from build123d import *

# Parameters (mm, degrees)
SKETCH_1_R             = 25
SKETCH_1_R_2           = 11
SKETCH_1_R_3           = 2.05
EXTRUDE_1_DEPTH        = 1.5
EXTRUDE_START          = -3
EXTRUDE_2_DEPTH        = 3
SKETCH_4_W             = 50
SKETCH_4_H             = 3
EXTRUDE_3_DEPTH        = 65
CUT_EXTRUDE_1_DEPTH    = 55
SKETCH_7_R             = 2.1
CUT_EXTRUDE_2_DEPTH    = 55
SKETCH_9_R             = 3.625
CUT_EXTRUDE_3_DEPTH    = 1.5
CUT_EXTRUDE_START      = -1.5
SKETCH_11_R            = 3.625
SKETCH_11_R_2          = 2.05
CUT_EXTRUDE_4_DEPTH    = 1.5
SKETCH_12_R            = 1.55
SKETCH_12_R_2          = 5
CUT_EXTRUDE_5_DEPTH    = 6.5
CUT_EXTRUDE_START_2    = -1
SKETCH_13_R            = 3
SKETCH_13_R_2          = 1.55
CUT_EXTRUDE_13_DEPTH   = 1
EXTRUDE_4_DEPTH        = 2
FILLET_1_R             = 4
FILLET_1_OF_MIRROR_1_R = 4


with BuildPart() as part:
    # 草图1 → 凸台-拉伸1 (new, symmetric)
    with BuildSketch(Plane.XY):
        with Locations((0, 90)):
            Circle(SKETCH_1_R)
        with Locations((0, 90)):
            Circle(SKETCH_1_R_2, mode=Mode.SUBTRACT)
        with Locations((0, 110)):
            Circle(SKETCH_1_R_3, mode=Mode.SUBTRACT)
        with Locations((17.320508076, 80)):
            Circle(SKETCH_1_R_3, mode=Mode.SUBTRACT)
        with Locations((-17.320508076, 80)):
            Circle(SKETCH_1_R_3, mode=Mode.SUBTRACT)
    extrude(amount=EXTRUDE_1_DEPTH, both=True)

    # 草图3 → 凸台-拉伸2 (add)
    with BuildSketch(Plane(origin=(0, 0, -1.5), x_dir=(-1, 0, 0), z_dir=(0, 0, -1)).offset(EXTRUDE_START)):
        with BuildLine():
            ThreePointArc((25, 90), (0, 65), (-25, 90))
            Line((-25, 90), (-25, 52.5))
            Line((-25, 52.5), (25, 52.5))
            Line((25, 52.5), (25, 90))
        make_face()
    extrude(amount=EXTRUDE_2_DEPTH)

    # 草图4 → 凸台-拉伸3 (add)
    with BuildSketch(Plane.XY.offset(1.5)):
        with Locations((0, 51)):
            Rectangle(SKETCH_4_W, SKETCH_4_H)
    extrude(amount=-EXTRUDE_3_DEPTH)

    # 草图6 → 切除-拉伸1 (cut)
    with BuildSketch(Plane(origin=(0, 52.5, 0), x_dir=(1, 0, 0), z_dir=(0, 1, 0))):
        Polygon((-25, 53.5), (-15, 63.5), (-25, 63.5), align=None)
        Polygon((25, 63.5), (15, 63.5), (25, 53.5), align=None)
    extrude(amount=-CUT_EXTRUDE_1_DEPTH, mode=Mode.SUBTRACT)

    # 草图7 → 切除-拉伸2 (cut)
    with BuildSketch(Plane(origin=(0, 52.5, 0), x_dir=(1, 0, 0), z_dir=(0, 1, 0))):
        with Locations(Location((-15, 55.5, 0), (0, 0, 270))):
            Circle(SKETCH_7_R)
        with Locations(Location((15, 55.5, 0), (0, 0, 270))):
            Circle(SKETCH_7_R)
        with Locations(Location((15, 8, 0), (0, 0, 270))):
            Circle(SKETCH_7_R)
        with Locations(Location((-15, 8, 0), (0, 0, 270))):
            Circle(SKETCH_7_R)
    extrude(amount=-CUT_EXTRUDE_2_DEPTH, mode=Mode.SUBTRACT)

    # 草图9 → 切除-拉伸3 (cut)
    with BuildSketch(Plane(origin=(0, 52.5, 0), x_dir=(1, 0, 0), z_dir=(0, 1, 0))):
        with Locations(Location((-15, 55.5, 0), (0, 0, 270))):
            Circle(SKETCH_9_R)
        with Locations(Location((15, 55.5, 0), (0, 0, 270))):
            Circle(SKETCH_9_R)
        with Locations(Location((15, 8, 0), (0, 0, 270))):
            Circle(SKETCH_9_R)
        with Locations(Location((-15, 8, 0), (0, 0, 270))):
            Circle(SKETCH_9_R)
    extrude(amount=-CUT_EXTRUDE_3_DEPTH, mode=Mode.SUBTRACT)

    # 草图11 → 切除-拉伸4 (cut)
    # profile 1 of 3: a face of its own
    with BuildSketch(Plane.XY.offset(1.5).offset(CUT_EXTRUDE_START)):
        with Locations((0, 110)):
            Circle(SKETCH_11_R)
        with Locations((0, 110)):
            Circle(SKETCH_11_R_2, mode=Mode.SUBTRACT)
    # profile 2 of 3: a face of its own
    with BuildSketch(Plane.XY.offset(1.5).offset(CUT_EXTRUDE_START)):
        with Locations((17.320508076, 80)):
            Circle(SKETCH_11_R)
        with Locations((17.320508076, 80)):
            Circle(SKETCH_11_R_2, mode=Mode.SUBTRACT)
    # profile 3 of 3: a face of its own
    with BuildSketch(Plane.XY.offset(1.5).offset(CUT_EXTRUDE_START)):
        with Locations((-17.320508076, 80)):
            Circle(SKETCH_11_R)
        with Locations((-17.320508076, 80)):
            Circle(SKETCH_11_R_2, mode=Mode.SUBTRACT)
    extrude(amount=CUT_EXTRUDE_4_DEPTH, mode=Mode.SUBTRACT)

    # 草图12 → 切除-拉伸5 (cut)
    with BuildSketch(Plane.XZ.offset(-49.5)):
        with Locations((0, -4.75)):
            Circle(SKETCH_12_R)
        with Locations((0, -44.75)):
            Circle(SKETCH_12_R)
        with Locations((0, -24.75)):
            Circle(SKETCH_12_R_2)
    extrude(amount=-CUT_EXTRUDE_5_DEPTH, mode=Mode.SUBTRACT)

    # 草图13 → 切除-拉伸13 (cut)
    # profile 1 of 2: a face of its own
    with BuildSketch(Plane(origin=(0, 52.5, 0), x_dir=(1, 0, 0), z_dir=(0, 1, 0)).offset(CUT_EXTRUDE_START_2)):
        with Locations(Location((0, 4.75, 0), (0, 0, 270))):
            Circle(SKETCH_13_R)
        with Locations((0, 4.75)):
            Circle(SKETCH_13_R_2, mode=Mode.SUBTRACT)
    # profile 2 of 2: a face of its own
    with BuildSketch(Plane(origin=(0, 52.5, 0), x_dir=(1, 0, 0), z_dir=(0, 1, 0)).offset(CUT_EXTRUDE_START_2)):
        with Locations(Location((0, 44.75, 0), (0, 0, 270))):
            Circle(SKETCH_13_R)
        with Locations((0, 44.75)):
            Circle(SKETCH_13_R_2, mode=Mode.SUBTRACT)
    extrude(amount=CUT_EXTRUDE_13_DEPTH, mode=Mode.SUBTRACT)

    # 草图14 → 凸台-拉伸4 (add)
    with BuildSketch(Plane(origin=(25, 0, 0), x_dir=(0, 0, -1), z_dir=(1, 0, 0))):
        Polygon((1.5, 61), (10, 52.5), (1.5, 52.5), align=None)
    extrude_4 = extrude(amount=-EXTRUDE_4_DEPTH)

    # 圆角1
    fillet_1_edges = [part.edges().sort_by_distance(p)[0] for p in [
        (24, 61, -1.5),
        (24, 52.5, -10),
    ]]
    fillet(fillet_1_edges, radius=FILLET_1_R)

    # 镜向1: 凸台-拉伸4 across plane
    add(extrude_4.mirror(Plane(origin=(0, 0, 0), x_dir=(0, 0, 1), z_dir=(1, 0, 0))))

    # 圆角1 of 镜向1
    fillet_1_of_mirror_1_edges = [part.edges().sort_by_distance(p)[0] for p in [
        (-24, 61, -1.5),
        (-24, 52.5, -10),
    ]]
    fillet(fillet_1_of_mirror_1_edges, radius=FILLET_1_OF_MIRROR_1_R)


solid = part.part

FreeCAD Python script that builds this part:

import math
import FreeCAD as App
import Part
import Sketcher
from FreeCAD import Vector


def edges_at(feature, points):
    """Names of the edges that pass closest to the given points."""
    edges = feature.Shape.Edges
    near = lambda p: min(range(len(edges)), key=lambda i: edges[i].distToShape(Part.Vertex(*p))[0])
    return sorted({f"Edge{near(p) + 1}" for p in points})


def add_polygon(sketch, points):
    """Adds a closed chain of lines whose ends are joined by coincident constraints."""
    first, n = sketch.GeometryCount, len(points)
    for a, b in zip(points, points[1:] + points[:1]):
        sketch.addGeometry(Part.LineSegment(App.Vector(*a, 0), App.Vector(*b, 0)), False)
    for i in range(n):
        sketch.addConstraint(Sketcher.Constraint("Coincident", first + i, 2, first + (i + 1) % n, 1))

doc = App.newDocument("Part")
body = doc.addObject("PartDesign::Body", "Body")

sketch1 = doc.addObject("Sketcher::SketchObject", "Sketch")
body.addObject(sketch1)
sketch1.AttachmentSupport = (doc.XY_Plane, [""])
sketch1.MapMode = "FlatFace"
sketch1.addGeometry(Part.Circle(Vector(0, 90, 0), Vector(0, 0, 1), 25), False)
sketch1.addGeometry(Part.Circle(Vector(-17.3, 80, 0), Vector(0, 0, 1), 2), False)
sketch1.addGeometry(Part.Circle(Vector(0, 90, 0), Vector(0, 0, 1), 11), False)
sketch1.addGeometry(Part.Circle(Vector(17.3, 80, 0), Vector(0, 0, 1), 2), False)
sketch1.addGeometry(Part.Circle(Vector(0, 110, 0), Vector(0, 0, 1), 2), False)
sketch1.addConstraint(Sketcher.Constraint("Coincident", 2, 3, 0, 3))
sketch1.addConstraint(Sketcher.Constraint("Equal", 1, 3))
sketch1.addConstraint(Sketcher.Constraint("Equal", 3, 4))
sketch1.addConstraint(Sketcher.Constraint("Symmetric", 1, 3, 3, 3, -2))
sketch1.addConstraint(Sketcher.Constraint("PointOnObject", 0, 3, -2))
sketch1.addConstraint(Sketcher.Constraint("PointOnObject", 4, 3, -2))
sketch1.addConstraint(Sketcher.Constraint("Diameter", 0, 50.0))
sketch1.addConstraint(Sketcher.Constraint("Diameter", 2, 22.0))
sketch1.addConstraint(Sketcher.Constraint("Diameter", 1, 4.1))
sketch1.addConstraint(Sketcher.Constraint("DistanceY", -1, 1, 0, 3, 90.0))
sketch1.addConstraint(Sketcher.Constraint("DistanceY", -1, 1, 1, 3, 80.0))
sketch1.addConstraint(Sketcher.Constraint("DistanceY", -1, 1, 4, 3, 110.0))
sketch1.addConstraint(Sketcher.Constraint("DistanceX", 1, 3, -1, 1, 17.320508))
pad1 = doc.addObject("PartDesign::Pad", "Pad")
body.addObject(pad1)
pad1.Profile = sketch1
pad1.Length = 3
pad1.Midplane = True

sketch2 = doc.addObject("Sketcher::SketchObject", "Sketch001")
body.addObject(sketch2)
sketch2.AttachmentSupport = (doc.XY_Plane, [""])
sketch2.MapMode = "FlatFace"
sketch2.AttachmentOffset = App.Placement(Vector(0, 0, 1.5), App.Rotation())
sketch2.addGeometry(Part.ArcOfCircle(Part.Circle(Vector(0, 90, 0), Vector(0, 0, 1), 25), math.radians(180), math.radians(360)), False)
sketch2.addGeometry(Part.LineSegment(Vector(25, 90, 0), Vector(25, 52, 0)), False)
sketch2.addGeometry(Part.LineSegment(Vector(25, 52, 0), Vector(-25, 52, 0)), False)
sketch2.addGeometry(Part.LineSegment(Vector(-25, 52, 0), Vector(-25, 90, 0)), False)
sketch2.addConstraint(Sketcher.Constraint("Tangent", 0, 2, 1, 1))
sketch2.addConstraint(Sketcher.Constraint("Coincident", 1, 2, 2, 1))
sketch2.addConstraint(Sketcher.Constraint("Coincident", 2, 2, 3, 1))
sketch2.addConstraint(Sketcher.Constraint("Tangent", 3, 2, 0, 1))
sketch2.addConstraint(Sketcher.Constraint("Vertical", 1))
sketch2.addConstraint(Sketcher.Constraint("Horizontal", 2))
sketch2.addConstraint(Sketcher.Constraint("Vertical", 3))
sketch2.addConstraint(Sketcher.Constraint("PointOnObject", 0, 3, -2))
sketch2.addConstraint(Sketcher.Constraint("Radius", 0, 25.0))
sketch2.addConstraint(Sketcher.Constraint("DistanceY", 1, 2, 1, 1, 37.5))
sketch2.addConstraint(Sketcher.Constraint("DistanceY", -1, 1, 0, 3, 90.0))
pad2 = doc.addObject("PartDesign::Pad", "Pad001")
body.addObject(pad2)
pad2.Profile = sketch2
pad2.Length = 3
pad2.Reversed = True

sketch3 = doc.addObject("Sketcher::SketchObject", "Sketch002")
body.addObject(sketch3)
sketch3.AttachmentSupport = (doc.XY_Plane, [""])
sketch3.MapMode = "FlatFace"
sketch3.AttachmentOffset = App.Placement(Vector(0, 0, 1.5), App.Rotation())
add_polygon(sketch3, [(-25, 52.5), (-25, 49.5), (25, 49.5), (25, 52.5)])
sketch3.addConstraint(Sketcher.Constraint("Vertical", 0))
sketch3.addConstraint(Sketcher.Constraint("Horizontal", 1))
sketch3.addConstraint(Sketcher.Constraint("Vertical", 2))
sketch3.addConstraint(Sketcher.Constraint("Horizontal", 3))
sketch3.addConstraint(Sketcher.Constraint("DistanceX", 1, 1, 1, 2, 50.0))
sketch3.addConstraint(Sketcher.Constraint("DistanceY", 0, 2, 0, 1, 3.0))
sketch3.addConstraint(Sketcher.Constraint("DistanceX", 0, 2, -1, 1, 25.0))
sketch3.addConstraint(Sketcher.Constraint("DistanceY", -1, 1, 0, 2, 49.5))
pad3 = doc.addObject("PartDesign::Pad", "Pad002")
body.addObject(pad3)
pad3.Profile = sketch3
pad3.Length = 65
pad3.Reversed = True

sketch4 = doc.addObject("Sketcher::SketchObject", "Sketch003")
body.addObject(sketch4)
sketch4.AttachmentSupport = (doc.XZ_Plane, [""])
sketch4.MapMode = "FlatFace"
sketch4.AttachmentOffset = App.Placement(Vector(0, 0, -52.5), App.Rotation())
add_polygon(sketch4, [(-25, -54), (-15, -64), (-25, -64)])
add_polygon(sketch4, [(25, -64), (15, -64), (25, -54)])
sketch4.addConstraint(Sketcher.Constraint("Horizontal", 1))
sketch4.addConstraint(Sketcher.Constraint("Vertical", 2))
sketch4.addConstraint(Sketcher.Constraint("Horizontal", 3))
sketch4.addConstraint(Sketcher.Constraint("Vertical", 5))
sketch4.addConstraint(Sketcher.Constraint("Symmetric", 0, 2, 3, 2, -2))
sketch4.addConstraint(Sketcher.Constraint("Symmetric", 2, 2, 4, 2, -2))
sketch4.addConstraint(Sketcher.Constraint("Perpendicular", 0, 4))
sketch4.addConstraint(Sketcher.Constraint("DistanceX", 1, 2, 1, 1, 10.0))
sketch4.addConstraint(Sketcher.Constraint("DistanceX", 0, 2, -1, 1, 15.0))
sketch4.addConstraint(Sketcher.Constraint("DistanceY", 0, 2, -1, 1, 63.5))
pocket1 = doc.addObject("PartDesign::Pocket", "Pocket")
body.addObject(pocket1)
pocket1.Profile = sketch4
pocket1.Length = 55
pocket1.Reversed = True

sketch5 = doc.addObject("Sketcher::SketchObject", "Sketch004")
body.addObject(sketch5)
sketch5.AttachmentSupport = (doc.XZ_Plane, [""])
sketch5.MapMode = "FlatFace"
sketch5.AttachmentOffset = App.Placement(Vector(0, 0, -52.5), App.Rotation())
sketch5.addGeometry(Part.Circle(Vector(-15, -55.5, 0), Vector(0, 0, 1), 2.1), False)
sketch5.addGeometry(Part.Circle(Vector(15, -55.5, 0), Vector(0, 0, 1), 2.1), False)
sketch5.addGeometry(Part.Circle(Vector(15, -8, 0), Vector(0, 0, 1), 2.1), False)
sketch5.addGeometry(Part.Circle(Vector(-15, -8, 0), Vector(0, 0, 1), 2.1), False)
sketch5.addConstraint(Sketcher.Constraint("Equal", 0, 1))
sketch5.addConstraint(Sketcher.Constraint("Equal", 1, 2))
sketch5.addConstraint(Sketcher.Constraint("Equal", 2, 3))
sketch5.addConstraint(Sketcher.Constraint("Symmetric", 0, 3, 1, 3, -2))
sketch5.addConstraint(Sketcher.Constraint("Symmetric", 2, 3, 3, 3, -2))
sketch5.addConstraint(Sketcher.Constraint("Vertical", 1, 3, 2, 3))
sketch5.addConstraint(Sketcher.Constraint("Diameter", 0, 4.2))
sketch5.addConstraint(Sketcher.Constraint("DistanceX", 0, 3, -1, 1, 15.0))
sketch5.addConstraint(Sketcher.Constraint("DistanceY", 2, 3, -1, 1, 8.0))
sketch5.addConstraint(Sketcher.Constraint("DistanceY", 0, 3, -1, 1, 55.5))
pocket2 = doc.addObject("PartDesign::Pocket", "Pocket001")
body.addObject(pocket2)
pocket2.Profile = sketch5
pocket2.Length = 55
pocket2.Reversed = True

sketch6 = doc.addObject("Sketcher::SketchObject", "Sketch005")
body.addObject(sketch6)
sketch6.AttachmentSupport = (doc.XZ_Plane, [""])
sketch6.MapMode = "FlatFace"
sketch6.AttachmentOffset = App.Placement(Vector(0, 0, -52.5), App.Rotation())
sketch6.addGeometry(Part.Circle(Vector(-15, -55.5, 0), Vector(0, 0, 1), 3.6), False)
sketch6.addGeometry(Part.Circle(Vector(15, -55.5, 0), Vector(0, 0, 1), 3.6), False)
sketch6.addGeometry(Part.Circle(Vector(15, -8, 0), Vector(0, 0, 1), 3.6), False)
sketch6.addGeometry(Part.Circle(Vector(-15, -8, 0), Vector(0, 0, 1), 3.6), False)
sketch6.addConstraint(Sketcher.Constraint("Equal", 0, 1))
sketch6.addConstraint(Sketcher.Constraint("Equal", 1, 2))
sketch6.addConstraint(Sketcher.Constraint("Equal", 2, 3))
sketch6.addConstraint(Sketcher.Constraint("Symmetric", 0, 3, 1, 3, -2))
sketch6.addConstraint(Sketcher.Constraint("Symmetric", 2, 3, 3, 3, -2))
sketch6.addConstraint(Sketcher.Constraint("Vertical", 1, 3, 2, 3))
sketch6.addConstraint(Sketcher.Constraint("Diameter", 0, 7.25))
sketch6.addConstraint(Sketcher.Constraint("DistanceX", 0, 3, -1, 1, 15.0))
sketch6.addConstraint(Sketcher.Constraint("DistanceY", 2, 3, -1, 1, 8.0))
sketch6.addConstraint(Sketcher.Constraint("DistanceY", 0, 3, -1, 1, 55.5))
pocket3 = doc.addObject("PartDesign::Pocket", "Pocket002")
body.addObject(pocket3)
pocket3.Profile = sketch6
pocket3.Length = 1.5
pocket3.Reversed = True

sketch7 = doc.addObject("Sketcher::SketchObject", "Sketch006")
body.addObject(sketch7)
sketch7.AttachmentSupport = (doc.XY_Plane, [""])
sketch7.MapMode = "FlatFace"
sketch7.addGeometry(Part.Circle(Vector(0, 110, 0), Vector(0, 0, 1), 3.6), False)
sketch7.addGeometry(Part.Circle(Vector(0, 110, 0), Vector(0, 0, 1), 2), False)
sketch7.addGeometry(Part.Circle(Vector(17.3, 80, 0), Vector(0, 0, 1), 3.6), False)
sketch7.addGeometry(Part.Circle(Vector(17.3, 80, 0), Vector(0, 0, 1), 2), False)
sketch7.addGeometry(Part.Circle(Vector(-17.3, 80, 0), Vector(0, 0, 1), 3.6), False)
sketch7.addGeometry(Part.Circle(Vector(-17.3, 80, 0), Vector(0, 0, 1), 2), False)
sketch7.addConstraint(Sketcher.Constraint("Coincident", 1, 3, 0, 3))
sketch7.addConstraint(Sketcher.Constraint("Coincident", 3, 3, 2, 3))
sketch7.addConstraint(Sketcher.Constraint("Coincident", 5, 3, 4, 3))
sketch7.addConstraint(Sketcher.Constraint("Equal", 0, 2))
sketch7.addConstraint(Sketcher.Constraint("Equal", 1, 3))
sketch7.addConstraint(Sketcher.Constraint("Equal", 2, 4))
sketch7.addConstraint(Sketcher.Constraint("Equal", 3, 5))
sketch7.addConstraint(Sketcher.Constraint("Symmetric", 2, 3, 4, 3, -2))
sketch7.addConstraint(Sketcher.Constraint("PointOnObject", 0, 3, -2))
sketch7.addConstraint(Sketcher.Constraint("Diameter", 1, 4.1))
sketch7.addConstraint(Sketcher.Constraint("Diameter", 0, 7.25))
sketch7.addConstraint(Sketcher.Constraint("DistanceY", -1, 1, 0, 3, 110.0))
sketch7.addConstraint(Sketcher.Constraint("DistanceY", -1, 1, 2, 3, 80.0))
sketch7.addConstraint(Sketcher.Constraint("DistanceX", -1, 1, 2, 3, 17.320508))
pocket4 = doc.addObject("PartDesign::Pocket", "Pocket003")
body.addObject(pocket4)
pocket4.Profile = sketch7
pocket4.Length = 1.5
pocket4.Reversed = True

sketch8 = doc.addObject("Sketcher::SketchObject", "Sketch007")
body.addObject(sketch8)
sketch8.AttachmentSupport = (doc.XZ_Plane, [""])
sketch8.MapMode = "FlatFace"
sketch8.AttachmentOffset = App.Placement(Vector(0, 0, -49.5), App.Rotation())
sketch8.addGeometry(Part.Circle(Vector(0, -4.8, 0), Vector(0, 0, 1), 1.6), False)
sketch8.addGeometry(Part.Circle(Vector(0, -44.8, 0), Vector(0, 0, 1), 1.6), False)
sketch8.addGeometry(Part.Circle(Vector(0, -24.8, 0), Vector(0, 0, 1), 5), False)
sketch8.addConstraint(Sketcher.Constraint("Equal", 0, 1))
sketch8.addConstraint(Sketcher.Constraint("PointOnObject", 0, 3, -2))
sketch8.addConstraint(Sketcher.Constraint("PointOnObject", 1, 3, -2))
sketch8.addConstraint(Sketcher.Constraint("PointOnObject", 2, 3, -2))
sketch8.addConstraint(Sketcher.Constraint("Diameter", 2, 10.0))
sketch8.addConstraint(Sketcher.Constraint("Diameter", 0, 3.1))
sketch8.addConstraint(Sketcher.Constraint("DistanceY", 1, 3, 0, 3, 40.0))
sketch8.addConstraint(Sketcher.Constraint("DistanceY", 2, 3, 0, 3, 20.0))
sketch8.addConstraint(Sketcher.Constraint("DistanceY", 0, 3, -1, 1, 4.75))
pocket5 = doc.addObject("PartDesign::Pocket", "Pocket004")
body.addObject(pocket5)
pocket5.Profile = sketch8
pocket5.Length = 6.5

sketch9 = doc.addObject("Sketcher::SketchObject", "Sketch008")
body.addObject(sketch9)
sketch9.AttachmentSupport = (doc.XZ_Plane, [""])
sketch9.MapMode = "FlatFace"
sketch9.AttachmentOffset = App.Placement(Vector(0, 0, -51.5), App.Rotation())
sketch9.addGeometry(Part.Circle(Vector(0, -4.8, 0), Vector(0, 0, 1), 3), False)
sketch9.addGeometry(Part.Circle(Vector(0, -4.8, 0), Vector(0, 0, 1), 1.6), False)
sketch9.addGeometry(Part.Circle(Vector(0, -44.8, 0), Vector(0, 0, 1), 3), False)
sketch9.addGeometry(Part.Circle(Vector(0, -44.8, 0), Vector(0, 0, 1), 1.6), False)
sketch9.addConstraint(Sketcher.Constraint("Coincident", 1, 3, 0, 3))
sketch9.addConstraint(Sketcher.Constraint("Coincident", 3, 3, 2, 3))
sketch9.addConstraint(Sketcher.Constraint("Equal", 0, 2))
sketch9.addConstraint(Sketcher.Constraint("Equal", 1, 3))
sketch9.addConstraint(Sketcher.Constraint("PointOnObject", 0, 3, -2))
sketch9.addConstraint(Sketcher.Constraint("PointOnObject", 2, 3, -2))
sketch9.addConstraint(Sketcher.Constraint("Diameter", 0, 6.0))
sketch9.addConstraint(Sketcher.Constraint("Diameter", 1, 3.1))
sketch9.addConstraint(Sketcher.Constraint("DistanceY", 2, 3, 0, 3, 40.0))
sketch9.addConstraint(Sketcher.Constraint("DistanceY", 0, 3, -1, 1, 4.75))
pocket6 = doc.addObject("PartDesign::Pocket", "Pocket005")
body.addObject(pocket6)
pocket6.Profile = sketch9
pocket6.Length = 1

sketch10 = doc.addObject("Sketcher::SketchObject", "Sketch009")
body.addObject(sketch10)
sketch10.AttachmentSupport = (doc.YZ_Plane, [""])
sketch10.MapMode = "FlatFace"
sketch10.AttachmentOffset = App.Placement(Vector(0, 0, 25), App.Rotation())
add_polygon(sketch10, [(52, -10), (61, -2), (52, -2)])
sketch10.addConstraint(Sketcher.Constraint("Horizontal", 1))
sketch10.addConstraint(Sketcher.Constraint("Vertical", 2))
sketch10.addConstraint(Sketcher.Constraint("Equal", 1, 2))
sketch10.addConstraint(Sketcher.Constraint("DistanceX", 1, 2, 1, 1, 8.5))
sketch10.addConstraint(Sketcher.Constraint("DistanceX", -1, 1, 0, 2, 61.0))
sketch10.addConstraint(Sketcher.Constraint("DistanceY", 2, 2, -1, 1, 10.0))
pad4 = doc.addObject("PartDesign::Pad", "Pad003")
body.addObject(pad4)
pad4.Profile = sketch10
pad4.Length = 2
pad4.Reversed = True
doc.recompute()

fillet = doc.addObject("PartDesign::Fillet", "Fillet")
body.addObject(fillet)
fillet.Base = (pad4, edges_at(pad4, [(24, 61, -1.5), (24, 52.5, -10)]))
fillet.Radius = 4
doc.recompute()

mirrored = doc.addObject("PartDesign::Mirrored", "Mirrored")
body.addObject(mirrored)
mirrored.Originals = [pad4]
mirrored.MirrorPlane = (doc.YZ_Plane, [""])
body.Tip = mirrored
doc.recompute()

fillet2 = doc.addObject("PartDesign::Fillet", "Fillet001")
body.addObject(fillet2)
fillet2.Base = (mirrored, edges_at(mirrored, [(-24, 61, -1.5), (-24, 52.5, -10)]))
fillet2.Radius = 4

doc.recompute()
